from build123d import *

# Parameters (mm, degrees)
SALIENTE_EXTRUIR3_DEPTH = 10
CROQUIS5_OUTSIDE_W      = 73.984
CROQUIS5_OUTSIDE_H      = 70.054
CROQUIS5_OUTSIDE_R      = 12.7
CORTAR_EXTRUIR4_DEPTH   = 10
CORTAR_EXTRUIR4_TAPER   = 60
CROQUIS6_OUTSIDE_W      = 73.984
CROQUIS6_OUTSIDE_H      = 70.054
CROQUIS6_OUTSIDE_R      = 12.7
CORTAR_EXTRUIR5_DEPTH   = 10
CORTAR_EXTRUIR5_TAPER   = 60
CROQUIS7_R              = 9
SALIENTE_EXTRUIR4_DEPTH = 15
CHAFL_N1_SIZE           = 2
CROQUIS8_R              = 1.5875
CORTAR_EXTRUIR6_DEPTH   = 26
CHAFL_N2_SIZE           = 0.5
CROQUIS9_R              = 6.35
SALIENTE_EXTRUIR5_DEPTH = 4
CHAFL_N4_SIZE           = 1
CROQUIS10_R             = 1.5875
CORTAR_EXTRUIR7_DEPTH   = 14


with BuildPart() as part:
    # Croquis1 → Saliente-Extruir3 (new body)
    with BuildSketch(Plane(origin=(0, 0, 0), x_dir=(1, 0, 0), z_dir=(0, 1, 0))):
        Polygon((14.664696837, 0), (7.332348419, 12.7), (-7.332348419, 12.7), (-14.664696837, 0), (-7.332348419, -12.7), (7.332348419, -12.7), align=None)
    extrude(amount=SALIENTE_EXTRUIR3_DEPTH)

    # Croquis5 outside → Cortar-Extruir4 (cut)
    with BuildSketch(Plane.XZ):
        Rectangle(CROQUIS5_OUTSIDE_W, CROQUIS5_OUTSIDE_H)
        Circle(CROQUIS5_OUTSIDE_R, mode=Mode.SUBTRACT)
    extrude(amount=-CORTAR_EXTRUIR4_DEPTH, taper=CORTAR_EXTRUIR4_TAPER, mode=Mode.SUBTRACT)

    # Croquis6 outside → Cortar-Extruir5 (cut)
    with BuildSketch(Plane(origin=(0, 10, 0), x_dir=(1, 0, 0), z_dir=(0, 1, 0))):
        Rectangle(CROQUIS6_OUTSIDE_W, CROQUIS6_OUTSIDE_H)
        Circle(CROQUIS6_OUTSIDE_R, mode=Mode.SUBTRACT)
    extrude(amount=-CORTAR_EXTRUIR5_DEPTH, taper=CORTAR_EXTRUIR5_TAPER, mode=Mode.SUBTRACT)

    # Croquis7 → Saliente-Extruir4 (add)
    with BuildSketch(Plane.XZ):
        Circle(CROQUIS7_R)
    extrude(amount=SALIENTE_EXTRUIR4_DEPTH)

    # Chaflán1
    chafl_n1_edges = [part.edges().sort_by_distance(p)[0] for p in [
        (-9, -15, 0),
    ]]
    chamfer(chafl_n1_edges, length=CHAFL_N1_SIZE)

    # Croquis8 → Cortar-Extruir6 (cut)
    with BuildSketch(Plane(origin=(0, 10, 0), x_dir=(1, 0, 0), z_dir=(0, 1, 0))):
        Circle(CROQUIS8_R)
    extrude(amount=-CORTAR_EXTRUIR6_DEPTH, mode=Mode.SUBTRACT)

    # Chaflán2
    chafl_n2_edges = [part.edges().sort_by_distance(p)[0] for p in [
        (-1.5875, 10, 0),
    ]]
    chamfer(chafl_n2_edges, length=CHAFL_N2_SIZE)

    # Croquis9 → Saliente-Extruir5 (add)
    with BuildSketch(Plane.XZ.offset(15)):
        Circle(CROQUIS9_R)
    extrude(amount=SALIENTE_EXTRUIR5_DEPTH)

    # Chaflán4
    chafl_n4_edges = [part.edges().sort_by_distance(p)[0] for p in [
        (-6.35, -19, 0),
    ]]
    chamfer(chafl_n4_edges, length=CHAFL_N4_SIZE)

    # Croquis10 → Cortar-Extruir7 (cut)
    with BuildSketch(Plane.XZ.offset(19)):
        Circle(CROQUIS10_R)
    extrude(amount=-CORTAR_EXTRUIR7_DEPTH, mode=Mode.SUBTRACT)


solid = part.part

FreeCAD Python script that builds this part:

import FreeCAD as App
import Part
import Sketcher
Q = App.Units.Quantity


def edges_at(feature, points):
    """Names of the edges that pass closest to the given points."""
    edges = feature.Shape.Edges
    near = lambda p: min(range(len(edges)), key=lambda i: edges[i].distToShape(Part.Vertex(*p))[0])
    return sorted({f"Edge{near(p) + 1}" for p in points})

doc = App.newDocument("Part")
body = doc.addObject("PartDesign::Body", "Body")

sketch1 = body.newObject("Sketcher::SketchObject", "Sketch")
sketch1.AttachmentSupport = (doc.getObject("XZ_Plane"), [""])
sketch1.MapMode = "FlatFace"
sketch1.addGeometry([
    Part.LineSegment(App.Vector(15, 0, 0), App.Vector(7, -13, 0)),
    Part.LineSegment(App.Vector(7, -13, 0), App.Vector(-7, -13, 0)),
    Part.LineSegment(App.Vector(-7, -13, 0), App.Vector(-15, 0, 0)),
    Part.LineSegment(App.Vector(-15, 0, 0), App.Vector(-7, 13, 0)),
    Part.LineSegment(App.Vector(-7, 13, 0), App.Vector(7, 13, 0)),
    Part.LineSegment(App.Vector(7, 13, 0), App.Vector(15, 0, 0)),
], False)
sketch1.addConstraint([
    Sketcher.Constraint("Coincident", 0, 2, 1, 1),
    Sketcher.Constraint("Coincident", 1, 2, 2, 1),
    Sketcher.Constraint("Coincident", 2, 2, 3, 1),
    Sketcher.Constraint("Coincident", 3, 2, 4, 1),
    Sketcher.Constraint("Coincident", 4, 2, 5, 1),
    Sketcher.Constraint("Coincident", 5, 2, 0, 1),
    Sketcher.Constraint("Horizontal", 1),
    Sketcher.Constraint("Horizontal", 4),
    Sketcher.Constraint("Symmetric", 0, 2, 3, 2, -1, 1),
    Sketcher.Constraint("Symmetric", 2, 2, 5, 2, -1, 1),
    Sketcher.Constraint("PointOnObject", 2, 2, -1),
    Sketcher.Constraint("Parallel", 2, 5),
    Sketcher.Constraint("Vertical", 1, 2, 3, 2),
    Sketcher.Constraint("Angle", 0, Q("-120 deg")),
    Sketcher.Constraint("DistanceY", 0, 2, -1, 1, Q("12.7 mm")),
    Sketcher.Constraint("DistanceX", 1, 2, 1, 1, Q("14.664697 mm")),
])
pad1 = body.newObject("PartDesign::Pad", "Pad")
pad1.Profile = sketch1
pad1.Length = 10
pad1.Reversed = True

sketch2 = body.newObject("Sketcher::SketchObject", "Sketch001")
sketch2.AttachmentSupport = (doc.getObject("XZ_Plane"), [""])
sketch2.MapMode = "FlatFace"
sketch2.addGeometry([
    Part.LineSegment(App.Vector(-37, 35, 0), App.Vector(-37, -35, 0)),
    Part.LineSegment(App.Vector(-37, -35, 0), App.Vector(37, -35, 0)),
    Part.LineSegment(App.Vector(37, -35, 0), App.Vector(37, 35, 0)),
    Part.LineSegment(App.Vector(37, 35, 0), App.Vector(-37, 35, 0)),
    Part.Circle(App.Vector(0, 0, 0), App.Vector(0, 0, 1), 13),
], False)
sketch2.addConstraint([
    Sketcher.Constraint("Coincident", 0, 2, 1, 1),
    Sketcher.Constraint("Coincident", 1, 2, 2, 1),
    Sketcher.Constraint("Coincident", 2, 2, 3, 1),
    Sketcher.Constraint("Coincident", 3, 2, 0, 1),
    Sketcher.Constraint("Vertical", 0),
    Sketcher.Constraint("Horizontal", 1),
    Sketcher.Constraint("Vertical", 2),
    Sketcher.Constraint("Horizontal", 3),
    Sketcher.Constraint("Coincident", 4, 3, -1, 1),
    Sketcher.Constraint("Symmetric", 0, 2, 2, 2, -1, 1),
    Sketcher.Constraint("Diameter", 4, Q("25.4 mm")),
    Sketcher.Constraint("DistanceX", 1, 1, 1, 2, Q("73.984 mm")),
    Sketcher.Constraint("DistanceY", 0, 2, 0, 1, Q("70.054 mm")),
])
pocket1 = body.newObject("PartDesign::Pocket", "Pocket")
pocket1.Profile = sketch2
pocket1.Length = 10
pocket1.TaperAngle = 60

sketch3 = body.newObject("Sketcher::SketchObject", "Sketch002")
sketch3.AttachmentSupport = (doc.getObject("XZ_Plane"), [""])
sketch3.MapMode = "FlatFace"
sketch3.AttachmentOffset = App.Placement(App.Vector(0, 0, -10), App.Rotation())
sketch3.addGeometry([
    Part.LineSegment(App.Vector(-37, -35, 0), App.Vector(-37, 35, 0)),
    Part.LineSegment(App.Vector(-37, 35, 0), App.Vector(37, 35, 0)),
    Part.LineSegment(App.Vector(37, 35, 0), App.Vector(37, -35, 0)),
    Part.LineSegment(App.Vector(37, -35, 0), App.Vector(-37, -35, 0)),
    Part.Circle(App.Vector(0, 0, 0), App.Vector(0, 0, 1), 13),
], False)
sketch3.addConstraint([
    Sketcher.Constraint("Coincident", 0, 2, 1, 1),
    Sketcher.Constraint("Coincident", 1, 2, 2, 1),
    Sketcher.Constraint("Coincident", 2, 2, 3, 1),
    Sketcher.Constraint("Coincident", 3, 2, 0, 1),
    Sketcher.Constraint("Vertical", 0),
    Sketcher.Constraint("Horizontal", 1),
    Sketcher.Constraint("Vertical", 2),
    Sketcher.Constraint("Horizontal", 3),
    Sketcher.Constraint("Coincident", 4, 3, -1, 1),
    Sketcher.Constraint("Symmetric", 0, 2, 2, 2, -1, 1),
    Sketcher.Constraint("Diameter", 4, Q("25.4 mm")),
    Sketcher.Constraint("DistanceX", 1, 1, 1, 2, Q("73.984 mm")),
    Sketcher.Constraint("DistanceY", 0, 1, 0, 2, Q("70.054 mm")),
])
pocket2 = body.newObject("PartDesign::Pocket", "Pocket001")
pocket2.Profile = sketch3
pocket2.Length = 10
pocket2.Reversed = True
pocket2.TaperAngle = 60

sketch4 = body.newObject("Sketcher::SketchObject", "Sketch003")
sketch4.AttachmentSupport = (doc.getObject("XZ_Plane"), [""])
sketch4.MapMode = "FlatFace"
sketch4.addGeometry(Part.Circle(App.Vector(0, 0, 0), App.Vector(0, 0, 1), 9), False)
sketch4.addConstraint([
    Sketcher.Constraint("Coincident", 0, 3, -1, 1),
    Sketcher.Constraint("Diameter", 0, Q("18 mm")),
])
pad2 = body.newObject("PartDesign::Pad", "Pad001")
pad2.Profile = sketch4
pad2.Length = 15
doc.recompute()

chamfer = body.newObject("PartDesign::Chamfer", "Chamfer")
chamfer.Base = (pad2, edges_at(pad2, [(-9, -15, 0)]))
chamfer.Size = 2

sketch5 = body.newObject("Sketcher::SketchObject", "Sketch004")
sketch5.AttachmentSupport = (doc.getObject("XZ_Plane"), [""])
sketch5.MapMode = "FlatFace"
sketch5.AttachmentOffset = App.Placement(App.Vector(0, 0, -10), App.Rotation())
sketch5.addGeometry(Part.Circle(App.Vector(0, 0, 0), App.Vector(0, 0, 1), 1.6), False)
sketch5.addConstraint([
    Sketcher.Constraint("Coincident", 0, 3, -1, 1),
    Sketcher.Constraint("Diameter", 0, Q("3.175 mm")),
])
pocket3 = body.newObject("PartDesign::Pocket", "Pocket002")
pocket3.Profile = sketch5
pocket3.Length = 26
pocket3.Reversed = True
doc.recompute()

chamfer2 = body.newObject("PartDesign::Chamfer", "Chamfer001")
chamfer2.Base = (pocket3, edges_at(pocket3, [(-1.587, 10, 0)]))
chamfer2.Size = 0.5

sketch6 = body.newObject("Sketcher::SketchObject", "Sketch005")
sketch6.AttachmentSupport = (doc.getObject("XZ_Plane"), [""])
sketch6.MapMode = "FlatFace"
sketch6.AttachmentOffset = App.Placement(App.Vector(0, 0, 15), App.Rotation())
sketch6.addGeometry(Part.Circle(App.Vector(0, 0, 0), App.Vector(0, 0, 1), 6), False)
sketch6.addConstraint([
    Sketcher.Constraint("Coincident", 0, 3, -1, 1),
    Sketcher.Constraint("Diameter", 0, Q("12.7 mm")),
])
pad3 = body.newObject("PartDesign::Pad", "Pad002")
pad3.Profile = sketch6
pad3.Length = 4
doc.recompute()

chamfer3 = body.newObject("PartDesign::Chamfer", "Chamfer002")
chamfer3.Base = (pad3, edges_at(pad3, [(-6.35, -19, 0)]))
chamfer3.Size = 1

sketch7 = body.newObject("Sketcher::SketchObject", "Sketch006")
sketch7.AttachmentSupport = (doc.getObject("XZ_Plane"), [""])
sketch7.MapMode = "FlatFace"
sketch7.AttachmentOffset = App.Placement(App.Vector(0, 0, 19), App.Rotation())
sketch7.addGeometry(Part.Circle(App.Vector(0, 0, 0), App.Vector(0, 0, 1), 1.6), False)
sketch7.addConstraint([
    Sketcher.Constraint("Coincident", 0, 3, -1, 1),
    Sketcher.Constraint("Diameter", 0, Q("3.175 mm")),
])
pocket4 = body.newObject("PartDesign::Pocket", "Pocket003")
pocket4.Profile = sketch7
pocket4.Length = 14

doc.recompute()
